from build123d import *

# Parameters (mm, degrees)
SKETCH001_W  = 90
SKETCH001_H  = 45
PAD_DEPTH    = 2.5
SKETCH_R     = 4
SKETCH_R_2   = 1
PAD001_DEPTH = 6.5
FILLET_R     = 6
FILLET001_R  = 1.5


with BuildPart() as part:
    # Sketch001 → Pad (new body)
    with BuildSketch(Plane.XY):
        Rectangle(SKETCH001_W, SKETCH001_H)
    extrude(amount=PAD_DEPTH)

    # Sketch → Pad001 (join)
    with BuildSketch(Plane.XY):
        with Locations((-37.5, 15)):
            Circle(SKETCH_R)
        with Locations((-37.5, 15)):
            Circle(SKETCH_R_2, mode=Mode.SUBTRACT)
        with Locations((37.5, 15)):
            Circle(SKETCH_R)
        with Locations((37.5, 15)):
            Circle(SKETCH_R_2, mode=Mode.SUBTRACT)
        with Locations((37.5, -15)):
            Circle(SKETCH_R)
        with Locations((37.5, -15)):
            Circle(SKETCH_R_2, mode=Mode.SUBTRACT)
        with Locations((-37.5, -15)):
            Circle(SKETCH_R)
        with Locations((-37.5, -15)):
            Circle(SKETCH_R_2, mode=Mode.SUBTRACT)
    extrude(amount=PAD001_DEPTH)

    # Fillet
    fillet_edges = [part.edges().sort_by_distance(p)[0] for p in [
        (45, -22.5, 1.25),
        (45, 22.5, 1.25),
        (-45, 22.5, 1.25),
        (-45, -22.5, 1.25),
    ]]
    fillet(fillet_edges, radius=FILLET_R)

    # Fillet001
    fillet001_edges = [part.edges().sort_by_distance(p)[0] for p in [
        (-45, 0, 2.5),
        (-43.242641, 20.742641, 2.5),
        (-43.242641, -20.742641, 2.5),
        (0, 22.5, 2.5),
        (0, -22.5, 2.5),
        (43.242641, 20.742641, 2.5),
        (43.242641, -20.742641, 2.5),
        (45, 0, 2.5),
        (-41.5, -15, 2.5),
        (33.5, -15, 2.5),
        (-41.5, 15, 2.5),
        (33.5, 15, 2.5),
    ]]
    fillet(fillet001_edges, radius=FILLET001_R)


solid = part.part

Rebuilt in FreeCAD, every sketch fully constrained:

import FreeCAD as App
import Part
import Sketcher
Q = App.Units.Quantity


def edges_at(feature, points):
    """Names of the edges that pass closest to the given points."""
    edges = feature.Shape.Edges
    near = lambda p: min(range(len(edges)), key=lambda i: edges[i].distToShape(Part.Vertex(*p))[0])
    return sorted({f"Edge{near(p) + 1}" for p in points})


def add_polygon(sketch, points):
    """Adds a closed chain of lines whose ends are joined by coincident constraints."""
    first, n = sketch.GeometryCount, len(points)
    for a, b in zip(points, points[1:] + points[:1]):
        sketch.addGeometry(Part.LineSegment(App.Vector(*a, 0), App.Vector(*b, 0)), False)
    for i in range(n):
        sketch.addConstraint(Sketcher.Constraint("Coincident", first + i, 2, first + (i + 1) % n, 1))

doc = App.newDocument("Part")
body = doc.addObject("PartDesign::Body", "Body")

sketch1 = body.newObject("Sketcher::SketchObject", "Sketch")
sketch1.AttachmentSupport = (doc.getObject("XY_Plane"), [""])
sketch1.MapMode = "FlatFace"
add_polygon(sketch1, [(-45, 22), (-45, -22), (45, -22), (45, 22)])
sketch1.addConstraint(Sketcher.Constraint("Vertical", 0))
sketch1.addConstraint(Sketcher.Constraint("Horizontal", 1))
sketch1.addConstraint(Sketcher.Constraint("Vertical", 2))
sketch1.addConstraint(Sketcher.Constraint("Horizontal", 3))
sketch1.addConstraint(Sketcher.Constraint("Symmetric", 0, 2, 2, 2, -1, 1))
sketch1.addConstraint(Sketcher.Constraint("DistanceX", 1, 1, 1, 2, Q("90 mm")))
sketch1.addConstraint(Sketcher.Constraint("DistanceY", 0, 2, 0, 1, Q("45 mm")))
pad1 = body.newObject("PartDesign::Pad", "Pad")
pad1.Profile = sketch1
pad1.Length = 2.5

sketch2 = body.newObject("Sketcher::SketchObject", "Sketch001")
sketch2.AttachmentSupport = (doc.getObject("XY_Plane"), [""])
sketch2.MapMode = "FlatFace"
sketch2.addGeometry(Part.Circle(App.Vector(-37.5, 15, 0), App.Vector(0, 0, 1), 4), False)
sketch2.addGeometry(Part.Circle(App.Vector(-37.5, 15, 0), App.Vector(0, 0, 1), 1), False)
sketch2.addGeometry(Part.Circle(App.Vector(37.5, 15, 0), App.Vector(0, 0, 1), 4), False)
sketch2.addGeometry(Part.Circle(App.Vector(37.5, 15, 0), App.Vector(0, 0, 1), 1), False)
sketch2.addGeometry(Part.Circle(App.Vector(37.5, -15, 0), App.Vector(0, 0, 1), 4), False)
sketch2.addGeometry(Part.Circle(App.Vector(37.5, -15, 0), App.Vector(0, 0, 1), 1), False)
sketch2.addGeometry(Part.Circle(App.Vector(-37.5, -15, 0), App.Vector(0, 0, 1), 4), False)
sketch2.addGeometry(Part.Circle(App.Vector(-37.5, -15, 0), App.Vector(0, 0, 1), 1), False)
sketch2.addConstraint(Sketcher.Constraint("Coincident", 1, 3, 0, 3))
sketch2.addConstraint(Sketcher.Constraint("Coincident", 3, 3, 2, 3))
sketch2.addConstraint(Sketcher.Constraint("Coincident", 5, 3, 4, 3))
sketch2.addConstraint(Sketcher.Constraint("Coincident", 7, 3, 6, 3))
sketch2.addConstraint(Sketcher.Constraint("Equal", 0, 2))
sketch2.addConstraint(Sketcher.Constraint("Equal", 1, 3))
sketch2.addConstraint(Sketcher.Constraint("Equal", 2, 4))
sketch2.addConstraint(Sketcher.Constraint("Equal", 3, 5))
sketch2.addConstraint(Sketcher.Constraint("Equal", 4, 6))
sketch2.addConstraint(Sketcher.Constraint("Equal", 5, 7))
sketch2.addConstraint(Sketcher.Constraint("Symmetric", 0, 3, 4, 3, -1, 1))
sketch2.addConstraint(Sketcher.Constraint("Symmetric", 2, 3, 6, 3, -1, 1))
sketch2.addConstraint(Sketcher.Constraint("Symmetric", 0, 3, 2, 3, -2))
sketch2.addConstraint(Sketcher.Constraint("Diameter", 0, Q("8 mm")))
sketch2.addConstraint(Sketcher.Constraint("Diameter", 1, Q("2 mm")))
sketch2.addConstraint(Sketcher.Constraint("DistanceY", -1, 1, 0, 3, Q("15 mm")))
sketch2.addConstraint(Sketcher.Constraint("DistanceX", 0, 3, 2, 3, Q("75 mm")))
pad2 = body.newObject("PartDesign::Pad", "Pad001")
pad2.Profile = sketch2
pad2.Length = 6.5
doc.recompute()

fillet = body.newObject("PartDesign::Fillet", "Fillet")
fillet.Base = (pad2, edges_at(pad2, [
    (45, -22.5, 1.25),
    (45, 22.5, 1.25),
    (-45, 22.5, 1.25),
    (-45, -22.5, 1.25),
]))
fillet.Radius = 6
doc.recompute()

fillet2 = body.newObject("PartDesign::Fillet", "Fillet001")
fillet2.Base = (fillet, edges_at(fillet, [
    (-45, 0, 2.5),
    (-43.243, 20.743, 2.5),
    (-43.243, -20.743, 2.5),
    (0, 22.5, 2.5),
    (0, -22.5, 2.5),
    (43.243, 20.743, 2.5),
    (43.243, -20.743, 2.5),
    (45, 0, 2.5),
    (-41.5, -15, 2.5),
    (33.5, -15, 2.5),
    (-41.5, 15, 2.5),
    (33.5, 15, 2.5),
]))
fillet2.Radius = 1.5

doc.recompute()
